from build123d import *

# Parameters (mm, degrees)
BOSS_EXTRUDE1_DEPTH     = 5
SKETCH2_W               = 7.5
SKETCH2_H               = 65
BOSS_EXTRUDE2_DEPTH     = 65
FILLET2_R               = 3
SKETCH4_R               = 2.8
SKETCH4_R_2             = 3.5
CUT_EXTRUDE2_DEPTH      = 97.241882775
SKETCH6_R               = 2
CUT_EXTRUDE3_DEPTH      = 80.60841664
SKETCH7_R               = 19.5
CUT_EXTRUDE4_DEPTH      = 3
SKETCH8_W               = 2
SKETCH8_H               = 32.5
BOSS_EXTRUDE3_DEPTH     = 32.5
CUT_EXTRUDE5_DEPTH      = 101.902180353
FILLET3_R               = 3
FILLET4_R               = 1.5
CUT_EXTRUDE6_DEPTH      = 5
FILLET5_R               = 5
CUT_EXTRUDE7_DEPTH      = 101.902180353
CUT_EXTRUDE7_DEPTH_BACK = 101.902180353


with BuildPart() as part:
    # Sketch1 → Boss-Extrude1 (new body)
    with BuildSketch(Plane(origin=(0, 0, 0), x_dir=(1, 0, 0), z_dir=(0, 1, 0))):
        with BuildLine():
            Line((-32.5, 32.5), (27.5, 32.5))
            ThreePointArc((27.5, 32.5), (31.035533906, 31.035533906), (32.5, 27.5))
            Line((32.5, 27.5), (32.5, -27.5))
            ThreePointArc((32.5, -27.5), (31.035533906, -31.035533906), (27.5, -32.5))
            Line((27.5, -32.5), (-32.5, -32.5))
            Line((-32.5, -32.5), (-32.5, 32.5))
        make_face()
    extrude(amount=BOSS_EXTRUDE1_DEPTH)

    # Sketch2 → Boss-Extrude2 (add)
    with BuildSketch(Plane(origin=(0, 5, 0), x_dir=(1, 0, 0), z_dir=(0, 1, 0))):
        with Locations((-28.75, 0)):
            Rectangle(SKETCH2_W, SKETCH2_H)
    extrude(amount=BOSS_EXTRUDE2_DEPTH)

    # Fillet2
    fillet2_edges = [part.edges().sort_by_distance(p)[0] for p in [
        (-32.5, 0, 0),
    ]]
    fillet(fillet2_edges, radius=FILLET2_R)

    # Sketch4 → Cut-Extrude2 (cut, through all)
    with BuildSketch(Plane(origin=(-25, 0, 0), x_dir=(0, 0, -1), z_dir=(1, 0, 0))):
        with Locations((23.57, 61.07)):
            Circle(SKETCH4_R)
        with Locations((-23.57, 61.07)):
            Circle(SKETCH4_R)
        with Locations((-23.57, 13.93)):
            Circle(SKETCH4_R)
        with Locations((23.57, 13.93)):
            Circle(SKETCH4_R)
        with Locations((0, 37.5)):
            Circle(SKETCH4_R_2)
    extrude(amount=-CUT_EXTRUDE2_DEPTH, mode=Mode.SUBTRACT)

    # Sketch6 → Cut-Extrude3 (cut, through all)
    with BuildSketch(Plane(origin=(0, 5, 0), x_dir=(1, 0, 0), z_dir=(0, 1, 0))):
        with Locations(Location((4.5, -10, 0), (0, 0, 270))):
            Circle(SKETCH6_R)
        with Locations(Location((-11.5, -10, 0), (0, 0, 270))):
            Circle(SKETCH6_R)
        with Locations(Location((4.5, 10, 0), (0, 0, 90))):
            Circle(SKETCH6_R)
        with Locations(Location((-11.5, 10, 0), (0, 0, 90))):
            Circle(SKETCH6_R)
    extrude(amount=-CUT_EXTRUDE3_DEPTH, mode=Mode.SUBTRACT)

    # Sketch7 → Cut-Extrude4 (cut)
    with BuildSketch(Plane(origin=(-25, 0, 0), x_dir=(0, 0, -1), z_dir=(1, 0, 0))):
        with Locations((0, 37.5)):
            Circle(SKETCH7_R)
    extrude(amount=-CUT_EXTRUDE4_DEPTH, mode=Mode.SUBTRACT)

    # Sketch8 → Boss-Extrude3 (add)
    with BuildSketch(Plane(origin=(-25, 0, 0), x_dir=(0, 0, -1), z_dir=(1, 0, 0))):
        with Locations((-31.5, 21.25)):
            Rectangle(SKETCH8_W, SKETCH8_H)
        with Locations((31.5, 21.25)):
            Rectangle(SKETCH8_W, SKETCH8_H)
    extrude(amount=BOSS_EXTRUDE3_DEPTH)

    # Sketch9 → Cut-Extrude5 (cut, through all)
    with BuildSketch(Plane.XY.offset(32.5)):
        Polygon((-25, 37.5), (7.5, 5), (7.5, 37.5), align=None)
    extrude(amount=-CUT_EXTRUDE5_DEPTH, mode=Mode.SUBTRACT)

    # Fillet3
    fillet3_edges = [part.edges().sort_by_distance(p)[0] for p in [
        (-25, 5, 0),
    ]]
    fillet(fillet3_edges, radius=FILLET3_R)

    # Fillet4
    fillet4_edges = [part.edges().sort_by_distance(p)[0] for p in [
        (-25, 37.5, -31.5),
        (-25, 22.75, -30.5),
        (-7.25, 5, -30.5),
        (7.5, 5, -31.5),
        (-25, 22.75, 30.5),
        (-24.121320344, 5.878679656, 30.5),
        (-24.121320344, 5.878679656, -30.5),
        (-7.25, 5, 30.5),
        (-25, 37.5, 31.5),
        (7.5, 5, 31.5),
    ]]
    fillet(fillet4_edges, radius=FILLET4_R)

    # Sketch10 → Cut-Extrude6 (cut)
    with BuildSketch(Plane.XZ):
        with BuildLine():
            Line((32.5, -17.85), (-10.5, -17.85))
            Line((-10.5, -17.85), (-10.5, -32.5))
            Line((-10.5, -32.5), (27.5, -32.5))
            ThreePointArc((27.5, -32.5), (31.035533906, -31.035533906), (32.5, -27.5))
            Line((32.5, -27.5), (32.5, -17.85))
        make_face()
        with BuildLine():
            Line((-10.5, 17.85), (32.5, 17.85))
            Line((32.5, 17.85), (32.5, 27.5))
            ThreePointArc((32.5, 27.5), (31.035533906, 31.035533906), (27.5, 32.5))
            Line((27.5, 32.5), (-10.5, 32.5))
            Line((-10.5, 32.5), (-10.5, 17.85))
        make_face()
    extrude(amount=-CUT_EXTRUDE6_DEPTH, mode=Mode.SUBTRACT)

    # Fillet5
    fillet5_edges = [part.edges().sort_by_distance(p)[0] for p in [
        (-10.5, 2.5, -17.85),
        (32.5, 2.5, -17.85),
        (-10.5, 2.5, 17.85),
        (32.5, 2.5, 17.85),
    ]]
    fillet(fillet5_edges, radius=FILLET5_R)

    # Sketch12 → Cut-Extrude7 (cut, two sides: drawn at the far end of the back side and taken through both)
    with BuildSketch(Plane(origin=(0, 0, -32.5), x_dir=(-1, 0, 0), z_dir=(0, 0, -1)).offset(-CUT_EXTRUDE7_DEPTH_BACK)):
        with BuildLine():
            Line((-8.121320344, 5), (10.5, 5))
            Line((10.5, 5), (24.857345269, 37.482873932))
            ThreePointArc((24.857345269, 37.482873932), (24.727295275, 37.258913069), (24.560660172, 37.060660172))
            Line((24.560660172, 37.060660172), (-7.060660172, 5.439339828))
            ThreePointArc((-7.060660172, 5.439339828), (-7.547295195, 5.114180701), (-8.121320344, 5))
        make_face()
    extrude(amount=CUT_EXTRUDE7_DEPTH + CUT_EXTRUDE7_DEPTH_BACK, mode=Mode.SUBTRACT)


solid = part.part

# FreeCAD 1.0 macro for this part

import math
import FreeCAD as App
import Part
import Sketcher
Q = App.Units.Quantity


def edges_at(feature, points):
    """Names of the edges that pass closest to the given points."""
    edges = feature.Shape.Edges
    near = lambda p: min(range(len(edges)), key=lambda i: edges[i].distToShape(Part.Vertex(*p))[0])
    return sorted({f"Edge{near(p) + 1}" for p in points})


def add_polygon(sketch, points):
    """Adds a closed chain of lines whose ends are joined by coincident constraints."""
    first, n = sketch.GeometryCount, len(points)
    for a, b in zip(points, points[1:] + points[:1]):
        sketch.addGeometry(Part.LineSegment(App.Vector(*a, 0), App.Vector(*b, 0)), False)
    for i in range(n):
        sketch.addConstraint(Sketcher.Constraint("Coincident", first + i, 2, first + (i + 1) % n, 1))

doc = App.newDocument("Part")
body = doc.addObject("PartDesign::Body", "Body")

# Sketch on XZ plane
sketch1 = body.newObject("Sketcher::SketchObject", "Sketch")
sketch1.AttachmentSupport = (doc.getObject("XZ_Plane"), [""])
sketch1.MapMode = "FlatFace"
sketch1.addGeometry([
    Part.LineSegment(App.Vector(28, -32, 0), App.Vector(-32, -32, 0)),  # 0
    Part.LineSegment(App.Vector(-32, -32, 0), App.Vector(-32, 32, 0)),  # 1
    Part.LineSegment(App.Vector(-32, 32, 0), App.Vector(28, 32, 0)),  # 2
    Part.ArcOfCircle(Part.Circle(App.Vector(28, 28, 0), App.Vector(0, 0, 1), 5), math.radians(0), math.radians(90)),  # 3
    Part.LineSegment(App.Vector(32, 28, 0), App.Vector(32, -28, 0)),  # 4
    Part.ArcOfCircle(Part.Circle(App.Vector(28, -28, 0), App.Vector(0, 0, 1), 5), math.radians(-90), math.radians(0)),  # 5
], False)
sketch1.addConstraint([
    Sketcher.Constraint("Coincident", 0, 2, 1, 1),
    Sketcher.Constraint("Coincident", 1, 2, 2, 1),
    Sketcher.Constraint("Tangent", 2, 2, 3, 2),
    Sketcher.Constraint("Tangent", 3, 1, 4, 1),
    Sketcher.Constraint("Tangent", 4, 2, 5, 2),
    Sketcher.Constraint("Tangent", 5, 1, 0, 1),
    Sketcher.Constraint("Horizontal", 0),
    Sketcher.Constraint("Vertical", 1),
    Sketcher.Constraint("Horizontal", 2),
    Sketcher.Constraint("Vertical", 4),
    Sketcher.Constraint("Equal", 3, 5),
    Sketcher.Constraint("Radius", 3, Q("5 mm")),
    Sketcher.Constraint("DistanceX", 0, 2, 0, 1, Q("60 mm")),
    Sketcher.Constraint("DistanceY", 1, 1, 1, 2, Q("65 mm")),
    Sketcher.Constraint("DistanceX", -1, 1, 3, 3, Q("27.5 mm")),
    Sketcher.Constraint("DistanceY", -1, 1, 3, 3, Q("27.5 mm")),
])
pad1 = body.newObject("PartDesign::Pad", "Pad")
pad1.Profile = sketch1
pad1.Length = 5
pad1.Reversed = True

# Sketch on XZ plane
sketch2 = body.newObject("Sketcher::SketchObject", "Sketch001")
sketch2.AttachmentSupport = (doc.getObject("XZ_Plane"), [""])
sketch2.MapMode = "FlatFace"
sketch2.AttachmentOffset = App.Placement(App.Vector(0, 0, -5), App.Rotation())
add_polygon(sketch2, [(-32, -32), (-32, 32), (-25, 32), (-25, -32)])  # lines 0-3
sketch2.addConstraint([
    Sketcher.Constraint("Vertical", 0),
    Sketcher.Constraint("Horizontal", 1),
    Sketcher.Constraint("Vertical", 2),
    Sketcher.Constraint("Horizontal", 3),
    Sketcher.Constraint("DistanceY", 0, 1, 0, 2, Q("65 mm")),
    Sketcher.Constraint("DistanceX", 1, 1, 1, 2, Q("7.5 mm")),
    Sketcher.Constraint("DistanceX", 1, 2, -1, 1, Q("25 mm")),
    Sketcher.Constraint("DistanceY", -1, 1, 0, 2, Q("32.5 mm")),
])
pad2 = body.newObject("PartDesign::Pad", "Pad001")
pad2.Profile = sketch2
pad2.Length = 65
pad2.Reversed = True
doc.recompute()

fillet = body.newObject("PartDesign::Fillet", "Fillet")
fillet.Base = (pad2, edges_at(pad2, [(-32.5, 0, 0)]))
fillet.Radius = 3

# Sketch on YZ plane
sketch3 = body.newObject("Sketcher::SketchObject", "Sketch002")
sketch3.AttachmentSupport = (doc.getObject("YZ_Plane"), [""])
sketch3.MapMode = "FlatFace"
sketch3.AttachmentOffset = App.Placement(App.Vector(0, 0, -25), App.Rotation())
sketch3.addGeometry([
    Part.Circle(App.Vector(61.1, -23.6, 0), App.Vector(0, 0, 1), 2.8),  # 0
    Part.Circle(App.Vector(61.1, 23.6, 0), App.Vector(0, 0, 1), 2.8),  # 1
    Part.Circle(App.Vector(13.9, 23.6, 0), App.Vector(0, 0, 1), 2.8),  # 2
    Part.Circle(App.Vector(13.9, -23.6, 0), App.Vector(0, 0, 1), 2.8),  # 3
    Part.Circle(App.Vector(37.5, 0, 0), App.Vector(0, 0, 1), 3.5),  # 4
], False)
sketch3.addConstraint([
    Sketcher.Constraint("Equal", 0, 1),
    Sketcher.Constraint("Equal", 1, 2),
    Sketcher.Constraint("Equal", 2, 3),
    Sketcher.Constraint("Symmetric", 0, 3, 1, 3, -1),
    Sketcher.Constraint("Symmetric", 2, 3, 3, 3, -1),
    Sketcher.Constraint("PointOnObject", 4, 3, -1),
    Sketcher.Constraint("Horizontal", 1, 3, 2, 3),
    Sketcher.Constraint("Diameter", 4, Q("7 mm")),
    Sketcher.Constraint("Diameter", 0, Q("5.6 mm")),
    Sketcher.Constraint("DistanceX", -1, 1, 4, 3, Q("37.5 mm")),
    Sketcher.Constraint("DistanceX", -1, 1, 0, 3, Q("61.07 mm")),
    Sketcher.Constraint("DistanceY", 0, 3, -1, 1, Q("23.57 mm")),
    Sketcher.Constraint("DistanceX", -1, 1, 2, 3, Q("13.93 mm")),
])
pocket1 = body.newObject("PartDesign::Pocket", "Pocket")
pocket1.Profile = sketch3
pocket1.Type = "ThroughAll"

# Sketch on XZ plane
sketch4 = body.newObject("Sketcher::SketchObject", "Sketch003")
sketch4.AttachmentSupport = (doc.getObject("XZ_Plane"), [""])
sketch4.MapMode = "FlatFace"
sketch4.AttachmentOffset = App.Placement(App.Vector(0, 0, -5), App.Rotation())
sketch4.addGeometry([
    Part.Circle(App.Vector(4.5, 10, 0), App.Vector(0, 0, 1), 2),
    Part.Circle(App.Vector(-11.5, 10, 0), App.Vector(0, 0, 1), 2),
    Part.Circle(App.Vector(4.5, -10, 0), App.Vector(0, 0, 1), 2),
    Part.Circle(App.Vector(-11.5, -10, 0), App.Vector(0, 0, 1), 2),
], False)
sketch4.addConstraint([
    Sketcher.Constraint("Equal", 0, 1),
    Sketcher.Constraint("Equal", 1, 2),
    Sketcher.Constraint("Equal", 2, 3),
    Sketcher.Constraint("Symmetric", 0, 3, 2, 3, -1),
    Sketcher.Constraint("Symmetric", 1, 3, 3, 3, -1),
    Sketcher.Constraint("Horizontal", 0, 3, 1, 3),
    Sketcher.Constraint("Diameter", 0, Q("4 mm")),
    Sketcher.Constraint("DistanceY", -1, 1, 0, 3, Q("10 mm")),
    Sketcher.Constraint("DistanceX", 1, 3, 0, 3, Q("16 mm")),
    Sketcher.Constraint("DistanceX", -1, 1, 0, 3, Q("4.5 mm")),
])
pocket2 = body.newObject("PartDesign::Pocket", "Pocket001")
pocket2.Profile = sketch4
pocket2.Type = "ThroughAll"
pocket2.Reversed = True

# Sketch on YZ plane
sketch5 = body.newObject("Sketcher::SketchObject", "Sketch004")
sketch5.AttachmentSupport = (doc.getObject("YZ_Plane"), [""])
sketch5.MapMode = "FlatFace"
sketch5.AttachmentOffset = App.Placement(App.Vector(0, 0, -25), App.Rotation())
sketch5.addGeometry(Part.Circle(App.Vector(38, 0, 0), App.Vector(0, 0, 1), 20), False)
sketch5.addConstraint([
    Sketcher.Constraint("PointOnObject", 0, 3, -1),
    Sketcher.Constraint("Diameter", 0, Q("39 mm")),
    Sketcher.Constraint("DistanceX", -1, 1, 0, 3, Q("37.5 mm")),
])
pocket3 = body.newObject("PartDesign::Pocket", "Pocket002")
pocket3.Profile = sketch5
pocket3.Length = 3

# Sketch on YZ plane
sketch6 = body.newObject("Sketcher::SketchObject", "Sketch005")
sketch6.AttachmentSupport = (doc.getObject("YZ_Plane"), [""])
sketch6.MapMode = "FlatFace"
sketch6.AttachmentOffset = App.Placement(App.Vector(0, 0, -25), App.Rotation())
add_polygon(sketch6, [(37.5, 32.5), (5, 32.5), (5, 30.5), (37.5, 30.5)])  # lines 0-3
add_polygon(sketch6, [(37.5, -30.5), (5, -30.5), (5, -32.5), (37.5, -32.5)])  # lines 4-7
sketch6.addConstraint([
    Sketcher.Constraint("Horizontal", 0),
    Sketcher.Constraint("Vertical", 1),
    Sketcher.Constraint("Horizontal", 2),
    Sketcher.Constraint("Vertical", 3),
    Sketcher.Constraint("Horizontal", 4),
    Sketcher.Constraint("Vertical", 5),
    Sketcher.Constraint("Horizontal", 6),
    Sketcher.Constraint("Vertical", 7),
    Sketcher.Constraint("Symmetric", 1, 2, 4, 2, -1),
    Sketcher.Constraint("Symmetric", 3, 2, 6, 2, -1),
    Sketcher.Constraint("DistanceY", 1, 2, 1, 1, Q("2 mm")),
    Sketcher.Constraint("DistanceX", 0, 2, 0, 1, Q("32.5 mm")),
    Sketcher.Constraint("DistanceX", -1, 1, 0, 2, Q("5 mm")),
    Sketcher.Constraint("DistanceY", 4, 2, 1, 2, Q("61 mm")),
])
pad3 = body.newObject("PartDesign::Pad", "Pad002")
pad3.Profile = sketch6
pad3.Length = 32.5

# Sketch on XY plane
sketch7 = body.newObject("Sketcher::SketchObject", "Sketch006")
sketch7.AttachmentSupport = (doc.getObject("XY_Plane"), [""])
sketch7.MapMode = "FlatFace"
sketch7.AttachmentOffset = App.Placement(App.Vector(0, 0, 32.5), App.Rotation())
add_polygon(sketch7, [(-25, 38), (8, 5), (8, 38)])  # lines 0-2
sketch7.addConstraint([
    Sketcher.Constraint("Vertical", 1),
    Sketcher.Constraint("Horizontal", 2),
    Sketcher.Constraint("Equal", 2, 1),
    Sketcher.Constraint("DistanceX", 2, 2, 2, 1, Q("32.5 mm")),
    Sketcher.Constraint("DistanceY", -1, 1, 0, 2, Q("5 mm")),
    Sketcher.Constraint("DistanceX", 2, 2, -1, 1, Q("25 mm")),
])
pocket4 = body.newObject("PartDesign::Pocket", "Pocket003")
pocket4.Profile = sketch7
pocket4.Type = "ThroughAll"
doc.recompute()

fillet2 = body.newObject("PartDesign::Fillet", "Fillet001")
fillet2.Base = (pocket4, edges_at(pocket4, [(-25, 5, 0)]))
fillet2.Radius = 3
doc.recompute()

fillet3 = body.newObject("PartDesign::Fillet", "Fillet002")
fillet3.Base = (fillet2, edges_at(fillet2, [
    (-25, 37.5, -31.5),
    (-25, 22.75, -30.5),
    (-7.25, 5, -30.5),
    (7.5, 5, -31.5),
    (-25, 22.75, 30.5),
    (-24.121, 5.879, 30.5),
    (-24.121, 5.879, -30.5),
    (-7.25, 5, 30.5),
    (-25, 37.5, 31.5),
    (7.5, 5, 31.5),
]))
fillet3.Radius = 1.5

# Sketch on XZ plane
sketch8 = body.newObject("Sketcher::SketchObject", "Sketch007")
sketch8.AttachmentSupport = (doc.getObject("XZ_Plane"), [""])
sketch8.MapMode = "FlatFace"
sketch8.addGeometry([
    Part.LineSegment(App.Vector(32, -18, 0), App.Vector(-10, -18, 0)),  # 0
    Part.LineSegment(App.Vector(-10, -18, 0), App.Vector(-10, -32, 0)),  # 1
    Part.LineSegment(App.Vector(-10, -32, 0), App.Vector(28, -32, 0)),  # 2
    Part.ArcOfCircle(Part.Circle(App.Vector(28, -28, 0), App.Vector(0, 0, 1), 5), math.radians(-90), math.radians(0)),  # 3
    Part.LineSegment(App.Vector(32, -28, 0), App.Vector(32, -18, 0)),  # 4
    Part.LineSegment(App.Vector(-10, 18, 0), App.Vector(32, 18, 0)),  # 5
    Part.LineSegment(App.Vector(32, 18, 0), App.Vector(32, 28, 0)),  # 6
    Part.ArcOfCircle(Part.Circle(App.Vector(28, 28, 0), App.Vector(0, 0, 1), 5), math.radians(0), math.radians(90)),  # 7
    Part.LineSegment(App.Vector(28, 32, 0), App.Vector(-10, 32, 0)),  # 8
    Part.LineSegment(App.Vector(-10, 32, 0), App.Vector(-10, 18, 0)),  # 9
], False)
sketch8.addConstraint([
    Sketcher.Constraint("Coincident", 0, 2, 1, 1),
    Sketcher.Constraint("Coincident", 1, 2, 2, 1),
    Sketcher.Constraint("Tangent", 2, 2, 3, 1),
    Sketcher.Constraint("Tangent", 3, 2, 4, 1),
    Sketcher.Constraint("Coincident", 4, 2, 0, 1),
    Sketcher.Constraint("Coincident", 5, 2, 6, 1),
    Sketcher.Constraint("Tangent", 6, 2, 7, 1),
    Sketcher.Constraint("Tangent", 7, 2, 8, 1),
    Sketcher.Constraint("Coincident", 8, 2, 9, 1),
    Sketcher.Constraint("Coincident", 9, 2, 5, 1),
    Sketcher.Constraint("Horizontal", 0),
    Sketcher.Constraint("Vertical", 1),
    Sketcher.Constraint("Horizontal", 2),
    Sketcher.Constraint("Vertical", 4),
    Sketcher.Constraint("Horizontal", 5),
    Sketcher.Constraint("Vertical", 6),
    Sketcher.Constraint("Horizontal", 8),
    Sketcher.Constraint("Vertical", 9),
    Sketcher.Constraint("Equal", 3, 7),
    Sketcher.Constraint("Symmetric", 3, 3, 7, 3, -1),
    Sketcher.Constraint("Symmetric", 0, 2, 9, 2, -1),
    Sketcher.Constraint("Radius", 3, Q("5 mm")),
    Sketcher.Constraint("DistanceX", 0, 2, 0, 1, Q("43 mm")),
    Sketcher.Constraint("DistanceY", 3, 3, 7, 3, Q("55 mm")),
    Sketcher.Constraint("DistanceY", 1, 2, 1, 1, Q("14.65 mm")),
    Sketcher.Constraint("DistanceX", -1, 1, 3, 3, Q("27.5 mm")),
])
pocket5 = body.newObject("PartDesign::Pocket", "Pocket004")
pocket5.Profile = sketch8
pocket5.Length = 5
doc.recompute()

fillet4 = body.newObject("PartDesign::Fillet", "Fillet003")
fillet4.Base = (pocket5, edges_at(pocket5, [
    (-10.5, 2.5, -17.85),
    (32.5, 2.5, -17.85),
    (-10.5, 2.5, 17.85),
    (32.5, 2.5, 17.85),
]))
fillet4.Radius = 5

# Sketch on XY plane
sketch9 = body.newObject("Sketcher::SketchObject", "Sketch008")
sketch9.AttachmentSupport = (doc.getObject("XY_Plane"), [""])
sketch9.MapMode = "FlatFace"
sketch9.AttachmentOffset = App.Placement(App.Vector(0, 0, -32.5), App.Rotation())
sketch9.addGeometry([
    Part.LineSegment(App.Vector(8.1, 5, 0), App.Vector(-10.5, 5, 0)),  # 0
    Part.LineSegment(App.Vector(-10.5, 5, 0), App.Vector(-24.9, 37.5, 0)),  # 1
    Part.ArcOfCircle(Part.Circle(App.Vector(-23.5, 38.1, 0), App.Vector(0, 0, 1), 1.5), math.radians(-154.81), math.radians(-135)),  # 2
    Part.LineSegment(App.Vector(-24.6, 37.1, 0), App.Vector(7.1, 5.4, 0)),  # 3
    Part.ArcOfCircle(Part.Circle(App.Vector(8.1, 6.5, 0), App.Vector(0, 0, 1), 1.5), math.radians(-135), math.radians(-90)),  # 4
], False)
sketch9.addConstraint([
    Sketcher.Constraint("Coincident", 0, 2, 1, 1),
    Sketcher.Constraint("Coincident", 1, 2, 2, 1),
    Sketcher.Constraint("Tangent", 2, 2, 3, 1),
    Sketcher.Constraint("Tangent", 3, 2, 4, 1),
    Sketcher.Constraint("Tangent", 4, 2, 0, 1),
    Sketcher.Constraint("Horizontal", 0),
    Sketcher.Constraint("Equal", 2, 4),
    Sketcher.Constraint("Radius", 2, Q("1.5 mm")),
    Sketcher.Constraint("Angle", 3, Q("-45 deg")),
    Sketcher.Constraint("DistanceY", -1, 1, 0, 2, Q("5 mm")),
    Sketcher.Constraint("DistanceX", 2, 3, 0, 2, Q("13 mm")),
    Sketcher.Constraint("DistanceX", 2, 3, -1, 1, Q("23.5 mm")),
    Sketcher.Constraint("Distance", 3, Q("44.7193 mm")),
    Sketcher.Constraint("Distance", 1, Q("35.51437 mm")),
])
pocket6 = body.newObject("PartDesign::Pocket", "Pocket005")
pocket6.Profile = sketch9
pocket6.Type = "ThroughAll"
pocket6.Midplane = True

doc.recompute()
